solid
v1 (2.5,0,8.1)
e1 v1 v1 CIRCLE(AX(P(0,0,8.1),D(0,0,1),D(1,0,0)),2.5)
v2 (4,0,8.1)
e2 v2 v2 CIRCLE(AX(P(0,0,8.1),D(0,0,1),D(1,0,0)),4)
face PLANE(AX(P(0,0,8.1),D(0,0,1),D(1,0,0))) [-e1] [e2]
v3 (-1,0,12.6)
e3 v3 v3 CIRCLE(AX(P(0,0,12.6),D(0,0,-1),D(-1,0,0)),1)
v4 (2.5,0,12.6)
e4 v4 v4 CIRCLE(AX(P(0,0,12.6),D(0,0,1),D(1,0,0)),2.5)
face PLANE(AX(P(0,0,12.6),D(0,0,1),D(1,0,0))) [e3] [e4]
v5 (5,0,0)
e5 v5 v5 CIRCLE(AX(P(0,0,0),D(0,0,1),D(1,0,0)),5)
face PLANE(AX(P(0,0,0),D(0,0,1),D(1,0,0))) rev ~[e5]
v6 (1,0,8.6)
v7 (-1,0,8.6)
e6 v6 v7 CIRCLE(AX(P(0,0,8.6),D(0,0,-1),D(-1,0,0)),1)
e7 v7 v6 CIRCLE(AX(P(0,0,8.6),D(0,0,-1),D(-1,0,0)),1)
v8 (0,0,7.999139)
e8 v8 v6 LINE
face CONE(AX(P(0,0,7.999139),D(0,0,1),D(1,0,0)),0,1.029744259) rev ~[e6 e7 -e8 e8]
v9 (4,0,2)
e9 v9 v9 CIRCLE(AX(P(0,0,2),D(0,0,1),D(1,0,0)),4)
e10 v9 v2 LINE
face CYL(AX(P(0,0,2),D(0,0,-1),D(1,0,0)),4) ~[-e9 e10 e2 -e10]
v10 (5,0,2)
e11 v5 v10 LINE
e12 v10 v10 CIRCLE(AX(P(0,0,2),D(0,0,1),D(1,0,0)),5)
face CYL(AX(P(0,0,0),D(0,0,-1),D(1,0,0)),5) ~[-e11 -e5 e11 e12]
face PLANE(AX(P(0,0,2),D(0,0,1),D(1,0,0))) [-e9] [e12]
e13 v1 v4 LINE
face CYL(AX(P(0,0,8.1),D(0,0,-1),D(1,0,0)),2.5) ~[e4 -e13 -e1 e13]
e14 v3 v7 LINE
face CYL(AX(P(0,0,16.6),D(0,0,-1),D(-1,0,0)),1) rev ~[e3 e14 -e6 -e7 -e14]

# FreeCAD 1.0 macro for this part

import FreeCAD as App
import Part
import Sketcher
Q = App.Units.Quantity

doc = App.newDocument("Part")
params = doc.addObject("Spreadsheet::Sheet", "Params")
for row, (alias, value) in enumerate([
    ("sketch1_diameter", "10 mm"),
    ("pad1_length", "2 mm"),
    ("sketch2_diameter", "8 mm"),
    ("pad2_length", "6.1 mm"),
    ("sketch3_diameter", "5 mm"),
    ("pad3_length", "4.5 mm"),
    ("sketch4_diameter", "2 mm"),
    ("hole_diameter", "2 mm"),
    ("hole_depth", "4 mm"),
], start=1):
    params.set(f"A{row}", alias)
    params.set(f"B{row}", "=" + value)
    params.setAlias(f"B{row}", alias)

body = doc.addObject("PartDesign::Body", "Body")

sketch1 = body.newObject("Sketcher::SketchObject", "Sketch")
sketch1.AttachmentSupport = (doc.getObject("XY_Plane"), [""])
sketch1.MapMode = "FlatFace"
sketch1.addGeometry(Part.Circle(App.Vector(0, 0, 0), App.Vector(0, 0, 1), 5), False)
sketch1.addConstraint(Sketcher.Constraint("Coincident", 0, 3, -1, 1))
sketch1.addConstraint(Sketcher.Constraint("Diameter", 0, Q("10 mm")))
sketch1.setExpression("Constraints[1]", "Params.sketch1_diameter")
pad1 = body.newObject("PartDesign::Pad", "Pad")
pad1.Profile = sketch1
pad1.setExpression("Length", "Params.pad1_length")

sketch2 = body.newObject("Sketcher::SketchObject", "Sketch001")
sketch2.AttachmentSupport = (doc.getObject("XY_Plane"), [""])
sketch2.MapMode = "FlatFace"
sketch2.AttachmentOffset = App.Placement(App.Vector(0, 0, 2), App.Rotation())
sketch2.addGeometry(Part.Circle(App.Vector(0, 0, 0), App.Vector(0, 0, 1), 4), False)
sketch2.addConstraint(Sketcher.Constraint("Coincident", 0, 3, -1, 1))
sketch2.addConstraint(Sketcher.Constraint("Diameter", 0, Q("8 mm")))
sketch2.setExpression("Constraints[1]", "Params.sketch2_diameter")
pad2 = body.newObject("PartDesign::Pad", "Pad001")
pad2.Profile = sketch2
pad2.setExpression("Length", "Params.pad2_length")

sketch3 = body.newObject("Sketcher::SketchObject", "Sketch002")
sketch3.AttachmentSupport = (doc.getObject("XY_Plane"), [""])
sketch3.MapMode = "FlatFace"
sketch3.AttachmentOffset = App.Placement(App.Vector(0, 0, 8.1), App.Rotation())
sketch3.addGeometry(Part.Circle(App.Vector(0, 0, 0), App.Vector(0, 0, 1), 2.5), False)
sketch3.addConstraint(Sketcher.Constraint("Coincident", 0, 3, -1, 1))
sketch3.addConstraint(Sketcher.Constraint("Diameter", 0, Q("5 mm")))
sketch3.setExpression("Constraints[1]", "Params.sketch3_diameter")
pad3 = body.newObject("PartDesign::Pad", "Pad002")
pad3.Profile = sketch3
pad3.setExpression("Length", "Params.pad3_length")

sketch4 = body.newObject("Sketcher::SketchObject", "Sketch003")
sketch4.AttachmentSupport = (doc.getObject("XY_Plane"), [""])
sketch4.MapMode = "FlatFace"
sketch4.AttachmentOffset = App.Placement(App.Vector(0, 0, 12.6), App.Rotation())
sketch4.addGeometry(Part.Circle(App.Vector(0, 0, 0), App.Vector(0, 0, 1), 1), False)
sketch4.addConstraint(Sketcher.Constraint("Coincident", 0, 3, -1, 1))
sketch4.addConstraint(Sketcher.Constraint("Diameter", 0, Q("2 mm")))
sketch4.setExpression("Constraints[1]", "Params.sketch4_diameter")
doc.recompute()
hole = body.newObject("PartDesign::Hole", "Hole")
hole.Profile = sketch4
hole.ThreadType = "None"
hole.setExpression("Diameter", "Params.hole_diameter")
hole.DepthType = "Dimension"
hole.setExpression("Depth", "Params.hole_depth")
hole.DrillPoint = "Angled"
hole.DrillPointAngle = 118

doc.recompute()
